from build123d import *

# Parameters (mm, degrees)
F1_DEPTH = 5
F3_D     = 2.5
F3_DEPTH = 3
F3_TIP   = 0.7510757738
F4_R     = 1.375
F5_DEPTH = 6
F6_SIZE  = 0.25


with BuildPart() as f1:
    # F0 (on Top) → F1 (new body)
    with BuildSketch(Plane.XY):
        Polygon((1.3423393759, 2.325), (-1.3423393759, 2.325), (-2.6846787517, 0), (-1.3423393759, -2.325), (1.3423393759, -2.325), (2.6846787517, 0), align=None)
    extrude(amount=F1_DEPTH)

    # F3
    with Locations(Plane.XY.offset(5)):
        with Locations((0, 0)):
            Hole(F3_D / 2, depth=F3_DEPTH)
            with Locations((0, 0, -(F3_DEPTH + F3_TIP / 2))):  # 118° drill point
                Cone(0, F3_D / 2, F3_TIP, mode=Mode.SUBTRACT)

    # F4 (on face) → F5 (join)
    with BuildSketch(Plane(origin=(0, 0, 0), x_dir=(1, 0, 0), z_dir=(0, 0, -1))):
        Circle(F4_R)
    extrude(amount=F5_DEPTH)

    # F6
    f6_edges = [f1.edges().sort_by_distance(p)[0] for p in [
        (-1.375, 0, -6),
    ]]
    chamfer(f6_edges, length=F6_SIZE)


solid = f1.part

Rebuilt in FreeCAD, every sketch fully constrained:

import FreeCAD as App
import Part
import Sketcher
from FreeCAD import Vector
Q = App.Units.Quantity


def edges_at(feature, points):
    """Names of the edges that pass closest to the given points."""
    edges = feature.Shape.Edges
    near = lambda p: min(range(len(edges)), key=lambda i: edges[i].distToShape(Part.Vertex(*p))[0])
    return sorted({f"Edge{near(p) + 1}" for p in points})


def add_polygon(sketch, points):
    """Adds a closed chain of lines whose ends are joined by coincident constraints."""
    first, n = sketch.GeometryCount, len(points)
    for a, b in zip(points, points[1:] + points[:1]):
        sketch.addGeometry(Part.LineSegment(App.Vector(*a, 0), App.Vector(*b, 0)), False)
    for i in range(n):
        sketch.addConstraint(Sketcher.Constraint("Coincident", first + i, 2, first + (i + 1) % n, 1))

doc = App.newDocument("Part")
body = doc.addObject("PartDesign::Body", "Body")

# Sketch on XY plane
sketch1 = body.newObject("Sketcher::SketchObject", "Sketch")
sketch1.AttachmentSupport = (doc.getObject("XY_Plane"), [""])
sketch1.MapMode = "FlatFace"
add_polygon(sketch1, [(1.3, 2.3), (-1.3, 2.3), (-2.7, 0), (-1.3, -2.3), (1.3, -2.3), (2.7, 0)])  # lines 0-5
sketch1.addConstraint([
    Sketcher.Constraint("Horizontal", 0),
    Sketcher.Constraint("Horizontal", 3),
    Sketcher.Constraint("Symmetric", 0, 2, 3, 2, -1, 1),
    Sketcher.Constraint("Symmetric", 1, 2, 4, 2, -1, 1),
    Sketcher.Constraint("PointOnObject", 1, 2, -1),
    Sketcher.Constraint("Parallel", 2, 5),
    Sketcher.Constraint("Vertical", 0, 2, 2, 2),
    Sketcher.Constraint("Angle", 1, Q("-120 deg")),
    Sketcher.Constraint("DistanceY", 2, 2, 0, 2, 4.65),
    Sketcher.Constraint("DistanceX", 0, 2, 0, 1, 2.684679),
])
pad1 = body.newObject("PartDesign::Pad", "Pad")
pad1.Profile = sketch1
pad1.Length = 5

# Sketch on XY plane
sketch2 = body.newObject("Sketcher::SketchObject", "Sketch001")
sketch2.AttachmentSupport = (doc.getObject("XY_Plane"), [""])
sketch2.MapMode = "FlatFace"
sketch2.AttachmentOffset = App.Placement(Vector(0, 0, 5), App.Rotation())
sketch2.addGeometry(Part.Circle(Vector(0, 0, 0), Vector(0, 0, 1), 1.2), False)
sketch2.addConstraint([
    Sketcher.Constraint("Coincident", 0, 3, -1, 1),
    Sketcher.Constraint("Diameter", 0, 2.5),
])
doc.recompute()
hole = body.newObject("PartDesign::Hole", "Hole")
hole.Profile = sketch2
hole.ThreadType = "None"
hole.Diameter = 2.5
hole.DepthType = "Dimension"
hole.Depth = 3
hole.DrillPoint = "Angled"
hole.DrillPointAngle = 118

# Sketch on XY plane
sketch3 = body.newObject("Sketcher::SketchObject", "Sketch002")
sketch3.AttachmentSupport = (doc.getObject("XY_Plane"), [""])
sketch3.MapMode = "FlatFace"
sketch3.addGeometry(Part.Circle(Vector(0, 0, 0), Vector(0, 0, 1), 1.4), False)
sketch3.addConstraint([
    Sketcher.Constraint("Coincident", 0, 3, -1, 1),
    Sketcher.Constraint("Diameter", 0, 2.75),
])
pad2 = body.newObject("PartDesign::Pad", "Pad001")
pad2.Profile = sketch3
pad2.Length = 6
pad2.Reversed = True
doc.recompute()

chamfer = body.newObject("PartDesign::Chamfer", "Chamfer")
chamfer.Base = (pad2, edges_at(pad2, [(-1.375, 0, -6)]))
chamfer.Size = 0.25

doc.recompute()
